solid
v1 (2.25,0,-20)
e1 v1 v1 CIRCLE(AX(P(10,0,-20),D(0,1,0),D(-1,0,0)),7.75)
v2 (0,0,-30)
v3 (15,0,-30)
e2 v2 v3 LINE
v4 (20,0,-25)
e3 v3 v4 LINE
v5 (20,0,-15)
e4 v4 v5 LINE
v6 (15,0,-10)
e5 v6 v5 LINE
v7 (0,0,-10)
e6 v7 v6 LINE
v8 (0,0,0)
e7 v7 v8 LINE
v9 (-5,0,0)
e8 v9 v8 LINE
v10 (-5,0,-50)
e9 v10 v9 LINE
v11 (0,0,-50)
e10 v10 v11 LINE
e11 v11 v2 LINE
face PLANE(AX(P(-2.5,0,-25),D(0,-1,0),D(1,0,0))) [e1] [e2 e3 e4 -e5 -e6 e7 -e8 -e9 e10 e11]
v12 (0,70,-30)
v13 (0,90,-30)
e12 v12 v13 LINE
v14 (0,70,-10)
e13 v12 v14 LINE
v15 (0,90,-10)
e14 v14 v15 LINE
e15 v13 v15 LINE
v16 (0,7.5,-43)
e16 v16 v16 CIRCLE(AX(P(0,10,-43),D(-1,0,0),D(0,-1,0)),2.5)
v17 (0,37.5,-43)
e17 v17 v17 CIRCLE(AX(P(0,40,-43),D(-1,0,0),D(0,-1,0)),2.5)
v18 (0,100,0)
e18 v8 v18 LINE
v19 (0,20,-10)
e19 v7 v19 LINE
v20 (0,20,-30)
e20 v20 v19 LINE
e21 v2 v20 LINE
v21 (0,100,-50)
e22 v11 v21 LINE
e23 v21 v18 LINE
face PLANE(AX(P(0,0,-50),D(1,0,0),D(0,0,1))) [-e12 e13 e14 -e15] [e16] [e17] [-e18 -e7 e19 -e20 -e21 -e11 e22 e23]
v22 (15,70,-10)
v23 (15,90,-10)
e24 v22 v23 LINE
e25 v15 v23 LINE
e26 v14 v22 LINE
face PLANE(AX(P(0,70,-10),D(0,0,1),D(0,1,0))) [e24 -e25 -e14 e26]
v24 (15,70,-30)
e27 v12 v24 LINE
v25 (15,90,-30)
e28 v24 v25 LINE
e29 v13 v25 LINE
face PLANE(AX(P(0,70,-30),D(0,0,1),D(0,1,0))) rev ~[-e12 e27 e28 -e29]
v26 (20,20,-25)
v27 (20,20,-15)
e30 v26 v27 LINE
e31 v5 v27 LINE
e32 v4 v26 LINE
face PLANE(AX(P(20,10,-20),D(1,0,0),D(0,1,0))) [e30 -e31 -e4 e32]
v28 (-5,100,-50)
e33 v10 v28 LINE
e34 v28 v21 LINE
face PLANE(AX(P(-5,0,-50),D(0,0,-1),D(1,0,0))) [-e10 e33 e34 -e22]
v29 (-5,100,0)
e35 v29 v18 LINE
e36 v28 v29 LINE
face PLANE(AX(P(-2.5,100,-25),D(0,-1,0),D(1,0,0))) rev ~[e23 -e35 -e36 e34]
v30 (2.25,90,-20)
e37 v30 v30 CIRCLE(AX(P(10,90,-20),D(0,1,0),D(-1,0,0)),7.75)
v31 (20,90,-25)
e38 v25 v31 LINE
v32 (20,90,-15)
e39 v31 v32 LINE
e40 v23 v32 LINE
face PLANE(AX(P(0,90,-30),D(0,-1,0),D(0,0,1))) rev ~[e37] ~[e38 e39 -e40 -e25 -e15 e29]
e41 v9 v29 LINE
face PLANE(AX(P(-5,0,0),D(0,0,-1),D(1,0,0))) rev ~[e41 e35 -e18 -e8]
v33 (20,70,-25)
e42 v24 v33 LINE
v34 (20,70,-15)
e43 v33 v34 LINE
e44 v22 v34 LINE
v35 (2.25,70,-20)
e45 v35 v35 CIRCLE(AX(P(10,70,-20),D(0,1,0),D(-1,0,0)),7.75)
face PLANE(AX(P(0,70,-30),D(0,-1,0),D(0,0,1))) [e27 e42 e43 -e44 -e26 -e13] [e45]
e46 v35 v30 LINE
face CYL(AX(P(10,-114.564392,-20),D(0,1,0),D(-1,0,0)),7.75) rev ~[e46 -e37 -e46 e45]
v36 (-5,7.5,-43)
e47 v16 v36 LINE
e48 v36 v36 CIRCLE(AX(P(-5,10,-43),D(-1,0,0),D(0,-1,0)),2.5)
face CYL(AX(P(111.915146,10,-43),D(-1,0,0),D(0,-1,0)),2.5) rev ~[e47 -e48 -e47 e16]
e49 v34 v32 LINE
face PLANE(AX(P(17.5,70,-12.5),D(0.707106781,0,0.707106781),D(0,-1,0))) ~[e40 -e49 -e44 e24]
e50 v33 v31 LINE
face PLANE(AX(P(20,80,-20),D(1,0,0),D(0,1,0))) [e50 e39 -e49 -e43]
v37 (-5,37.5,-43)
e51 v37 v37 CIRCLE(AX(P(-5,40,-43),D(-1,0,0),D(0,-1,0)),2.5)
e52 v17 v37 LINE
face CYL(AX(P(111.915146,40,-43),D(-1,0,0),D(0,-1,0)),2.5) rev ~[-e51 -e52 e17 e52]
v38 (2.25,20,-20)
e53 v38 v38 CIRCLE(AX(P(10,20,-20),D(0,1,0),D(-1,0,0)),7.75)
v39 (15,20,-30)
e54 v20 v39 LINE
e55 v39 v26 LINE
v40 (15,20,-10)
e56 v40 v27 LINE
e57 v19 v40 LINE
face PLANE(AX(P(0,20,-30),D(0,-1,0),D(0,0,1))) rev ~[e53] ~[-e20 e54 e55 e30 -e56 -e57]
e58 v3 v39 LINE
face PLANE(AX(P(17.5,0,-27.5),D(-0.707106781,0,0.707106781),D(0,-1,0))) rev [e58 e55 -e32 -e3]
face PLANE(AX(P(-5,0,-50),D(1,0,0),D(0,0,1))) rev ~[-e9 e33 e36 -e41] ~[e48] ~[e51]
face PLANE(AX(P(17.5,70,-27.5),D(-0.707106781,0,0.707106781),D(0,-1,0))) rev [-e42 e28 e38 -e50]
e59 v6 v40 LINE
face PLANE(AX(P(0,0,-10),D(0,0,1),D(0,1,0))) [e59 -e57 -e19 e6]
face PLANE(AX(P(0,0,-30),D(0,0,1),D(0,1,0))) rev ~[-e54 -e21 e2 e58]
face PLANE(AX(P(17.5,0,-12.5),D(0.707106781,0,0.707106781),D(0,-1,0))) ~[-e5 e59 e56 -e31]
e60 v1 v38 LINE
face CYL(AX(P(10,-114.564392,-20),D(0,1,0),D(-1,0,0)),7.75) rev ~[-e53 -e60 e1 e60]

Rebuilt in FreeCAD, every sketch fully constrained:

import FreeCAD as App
import Part
import Sketcher

V = App.Vector


def edges_at(feature, points):
    """Names of the edges that pass closest to the given points."""
    edges = feature.Shape.Edges
    near = lambda p: min(range(len(edges)), key=lambda i: edges[i].distToShape(Part.Vertex(*p))[0])
    return sorted({f"Edge{near(p) + 1}" for p in points})


def add_polygon(sketch, points):
    """Adds a closed chain of lines whose ends are joined by coincident constraints."""
    first, n = sketch.GeometryCount, len(points)
    for a, b in zip(points, points[1:] + points[:1]):
        sketch.addGeometry(Part.LineSegment(App.Vector(*a, 0), App.Vector(*b, 0)), False)
    for i in range(n):
        sketch.addConstraint(Sketcher.Constraint("Coincident", first + i, 2, first + (i + 1) % n, 1))

doc = App.newDocument("Part")
body = doc.addObject("PartDesign::Body", "Body")

# Sketch on XZ plane
sketch1 = body.newObject("Sketcher::SketchObject", "Sketch")
sketch1.AttachmentSupport = (doc.getObject("XZ_Plane"), [""])
sketch1.MapMode = "FlatFace"
add_polygon(sketch1, [(-5, 0), (-5, -50), (0, -50), (0, 0)])  # lines 0-3
sketch1.addConstraint([
    Sketcher.Constraint("Vertical", 0),
    Sketcher.Constraint("Horizontal", 1),
    Sketcher.Constraint("Vertical", 2),
    Sketcher.Constraint("Horizontal", 3),
    Sketcher.Constraint("Coincident", 2, 2, -1, 1),
    Sketcher.Constraint("DistanceX", 1, 1, 1, 2, 5.0),
    Sketcher.Constraint("DistanceY", 0, 2, 0, 1, 50.0),
])
pad1 = body.newObject("PartDesign::Pad", "Pad")
pad1.Profile = sketch1
pad1.Length = 100
pad1.Reversed = True

# Sketch on YZ plane
sketch2 = body.newObject("Sketcher::SketchObject", "Sketch001")
sketch2.AttachmentSupport = (doc.getObject("YZ_Plane"), [""])
sketch2.MapMode = "FlatFace"
sketch2.addGeometry([
    Part.Circle(V(10, -43, 0), V(0, 0, 1), 2.5),
    Part.Circle(V(40, -43, 0), V(0, 0, 1), 2.5),
], False)
sketch2.addConstraint([
    Sketcher.Constraint("Equal", 0, 1),
    Sketcher.Constraint("Horizontal", 0, 3, 1, 3),
    Sketcher.Constraint("Diameter", 0, 5.0),
    Sketcher.Constraint("DistanceX", -1, 1, 0, 3, 10.0),
    Sketcher.Constraint("DistanceY", 0, 3, -1, 1, 43.0),
    Sketcher.Constraint("DistanceX", -1, 1, 1, 3, 40.0),
])
doc.recompute()
hole = body.newObject("PartDesign::Hole", "Hole")
hole.Profile = sketch2
hole.ThreadType = "None"
hole.Diameter = 5
hole.DepthType = "ThroughAll"

# Sketch on YZ plane
sketch3 = body.newObject("Sketcher::SketchObject", "Sketch002")
sketch3.AttachmentSupport = (doc.getObject("YZ_Plane"), [""])
sketch3.MapMode = "FlatFace"
add_polygon(sketch3, [(0, -10), (0, -30), (20, -30), (20, -10)])  # lines 0-3
add_polygon(sketch3, [(70, -10), (70, -30), (90, -30), (90, -10)])  # lines 4-7
sketch3.addConstraint([
    Sketcher.Constraint("Vertical", 0),
    Sketcher.Constraint("Horizontal", 1),
    Sketcher.Constraint("Vertical", 2),
    Sketcher.Constraint("Horizontal", 3),
    Sketcher.Constraint("Vertical", 4),
    Sketcher.Constraint("Horizontal", 5),
    Sketcher.Constraint("Vertical", 6),
    Sketcher.Constraint("Horizontal", 7),
    Sketcher.Constraint("PointOnObject", 0, 2, -2),
    Sketcher.Constraint("Horizontal", 1, 2, 4, 2),
    Sketcher.Constraint("Horizontal", 3, 2, 6, 2),
    Sketcher.Constraint("Equal", 3, 5),
    Sketcher.Constraint("Equal", 7, 0),
    Sketcher.Constraint("DistanceX", 1, 1, 1, 2, 20.0),
    Sketcher.Constraint("DistanceY", 0, 2, -1, 1, 30.0),
    Sketcher.Constraint("DistanceX", -1, 1, 4, 2, 70.0),
])
pad2 = body.newObject("PartDesign::Pad", "Pad001")
pad2.Profile = sketch3
pad2.Length = 20
doc.recompute()

chamfer = body.newObject("PartDesign::Chamfer", "Chamfer")
chamfer.Base = (pad2, edges_at(pad2, [
    (20, 10, -10),
    (20, 10, -30),
    (20, 80, -10),
    (20, 80, -30),
]))
chamfer.Size = 5

# Sketch on XZ plane
sketch4 = body.newObject("Sketcher::SketchObject", "Sketch003")
sketch4.AttachmentSupport = (doc.getObject("XZ_Plane"), [""])
sketch4.MapMode = "FlatFace"
sketch4.addGeometry(Part.Circle(V(10, -20, 0), V(0, 0, 1), 8), False)
sketch4.addConstraint([
    Sketcher.Constraint("Diameter", 0, 15.5),
    Sketcher.Constraint("DistanceX", -1, 1, 0, 3, 10.0),
    Sketcher.Constraint("DistanceY", 0, 3, -1, 1, 20.0),
])
doc.recompute()
hole2 = body.newObject("PartDesign::Hole", "Hole001")
hole2.Profile = sketch4
hole2.ThreadType = "None"
hole2.Diameter = 15.5
hole2.DepthType = "ThroughAll"

doc.recompute()
